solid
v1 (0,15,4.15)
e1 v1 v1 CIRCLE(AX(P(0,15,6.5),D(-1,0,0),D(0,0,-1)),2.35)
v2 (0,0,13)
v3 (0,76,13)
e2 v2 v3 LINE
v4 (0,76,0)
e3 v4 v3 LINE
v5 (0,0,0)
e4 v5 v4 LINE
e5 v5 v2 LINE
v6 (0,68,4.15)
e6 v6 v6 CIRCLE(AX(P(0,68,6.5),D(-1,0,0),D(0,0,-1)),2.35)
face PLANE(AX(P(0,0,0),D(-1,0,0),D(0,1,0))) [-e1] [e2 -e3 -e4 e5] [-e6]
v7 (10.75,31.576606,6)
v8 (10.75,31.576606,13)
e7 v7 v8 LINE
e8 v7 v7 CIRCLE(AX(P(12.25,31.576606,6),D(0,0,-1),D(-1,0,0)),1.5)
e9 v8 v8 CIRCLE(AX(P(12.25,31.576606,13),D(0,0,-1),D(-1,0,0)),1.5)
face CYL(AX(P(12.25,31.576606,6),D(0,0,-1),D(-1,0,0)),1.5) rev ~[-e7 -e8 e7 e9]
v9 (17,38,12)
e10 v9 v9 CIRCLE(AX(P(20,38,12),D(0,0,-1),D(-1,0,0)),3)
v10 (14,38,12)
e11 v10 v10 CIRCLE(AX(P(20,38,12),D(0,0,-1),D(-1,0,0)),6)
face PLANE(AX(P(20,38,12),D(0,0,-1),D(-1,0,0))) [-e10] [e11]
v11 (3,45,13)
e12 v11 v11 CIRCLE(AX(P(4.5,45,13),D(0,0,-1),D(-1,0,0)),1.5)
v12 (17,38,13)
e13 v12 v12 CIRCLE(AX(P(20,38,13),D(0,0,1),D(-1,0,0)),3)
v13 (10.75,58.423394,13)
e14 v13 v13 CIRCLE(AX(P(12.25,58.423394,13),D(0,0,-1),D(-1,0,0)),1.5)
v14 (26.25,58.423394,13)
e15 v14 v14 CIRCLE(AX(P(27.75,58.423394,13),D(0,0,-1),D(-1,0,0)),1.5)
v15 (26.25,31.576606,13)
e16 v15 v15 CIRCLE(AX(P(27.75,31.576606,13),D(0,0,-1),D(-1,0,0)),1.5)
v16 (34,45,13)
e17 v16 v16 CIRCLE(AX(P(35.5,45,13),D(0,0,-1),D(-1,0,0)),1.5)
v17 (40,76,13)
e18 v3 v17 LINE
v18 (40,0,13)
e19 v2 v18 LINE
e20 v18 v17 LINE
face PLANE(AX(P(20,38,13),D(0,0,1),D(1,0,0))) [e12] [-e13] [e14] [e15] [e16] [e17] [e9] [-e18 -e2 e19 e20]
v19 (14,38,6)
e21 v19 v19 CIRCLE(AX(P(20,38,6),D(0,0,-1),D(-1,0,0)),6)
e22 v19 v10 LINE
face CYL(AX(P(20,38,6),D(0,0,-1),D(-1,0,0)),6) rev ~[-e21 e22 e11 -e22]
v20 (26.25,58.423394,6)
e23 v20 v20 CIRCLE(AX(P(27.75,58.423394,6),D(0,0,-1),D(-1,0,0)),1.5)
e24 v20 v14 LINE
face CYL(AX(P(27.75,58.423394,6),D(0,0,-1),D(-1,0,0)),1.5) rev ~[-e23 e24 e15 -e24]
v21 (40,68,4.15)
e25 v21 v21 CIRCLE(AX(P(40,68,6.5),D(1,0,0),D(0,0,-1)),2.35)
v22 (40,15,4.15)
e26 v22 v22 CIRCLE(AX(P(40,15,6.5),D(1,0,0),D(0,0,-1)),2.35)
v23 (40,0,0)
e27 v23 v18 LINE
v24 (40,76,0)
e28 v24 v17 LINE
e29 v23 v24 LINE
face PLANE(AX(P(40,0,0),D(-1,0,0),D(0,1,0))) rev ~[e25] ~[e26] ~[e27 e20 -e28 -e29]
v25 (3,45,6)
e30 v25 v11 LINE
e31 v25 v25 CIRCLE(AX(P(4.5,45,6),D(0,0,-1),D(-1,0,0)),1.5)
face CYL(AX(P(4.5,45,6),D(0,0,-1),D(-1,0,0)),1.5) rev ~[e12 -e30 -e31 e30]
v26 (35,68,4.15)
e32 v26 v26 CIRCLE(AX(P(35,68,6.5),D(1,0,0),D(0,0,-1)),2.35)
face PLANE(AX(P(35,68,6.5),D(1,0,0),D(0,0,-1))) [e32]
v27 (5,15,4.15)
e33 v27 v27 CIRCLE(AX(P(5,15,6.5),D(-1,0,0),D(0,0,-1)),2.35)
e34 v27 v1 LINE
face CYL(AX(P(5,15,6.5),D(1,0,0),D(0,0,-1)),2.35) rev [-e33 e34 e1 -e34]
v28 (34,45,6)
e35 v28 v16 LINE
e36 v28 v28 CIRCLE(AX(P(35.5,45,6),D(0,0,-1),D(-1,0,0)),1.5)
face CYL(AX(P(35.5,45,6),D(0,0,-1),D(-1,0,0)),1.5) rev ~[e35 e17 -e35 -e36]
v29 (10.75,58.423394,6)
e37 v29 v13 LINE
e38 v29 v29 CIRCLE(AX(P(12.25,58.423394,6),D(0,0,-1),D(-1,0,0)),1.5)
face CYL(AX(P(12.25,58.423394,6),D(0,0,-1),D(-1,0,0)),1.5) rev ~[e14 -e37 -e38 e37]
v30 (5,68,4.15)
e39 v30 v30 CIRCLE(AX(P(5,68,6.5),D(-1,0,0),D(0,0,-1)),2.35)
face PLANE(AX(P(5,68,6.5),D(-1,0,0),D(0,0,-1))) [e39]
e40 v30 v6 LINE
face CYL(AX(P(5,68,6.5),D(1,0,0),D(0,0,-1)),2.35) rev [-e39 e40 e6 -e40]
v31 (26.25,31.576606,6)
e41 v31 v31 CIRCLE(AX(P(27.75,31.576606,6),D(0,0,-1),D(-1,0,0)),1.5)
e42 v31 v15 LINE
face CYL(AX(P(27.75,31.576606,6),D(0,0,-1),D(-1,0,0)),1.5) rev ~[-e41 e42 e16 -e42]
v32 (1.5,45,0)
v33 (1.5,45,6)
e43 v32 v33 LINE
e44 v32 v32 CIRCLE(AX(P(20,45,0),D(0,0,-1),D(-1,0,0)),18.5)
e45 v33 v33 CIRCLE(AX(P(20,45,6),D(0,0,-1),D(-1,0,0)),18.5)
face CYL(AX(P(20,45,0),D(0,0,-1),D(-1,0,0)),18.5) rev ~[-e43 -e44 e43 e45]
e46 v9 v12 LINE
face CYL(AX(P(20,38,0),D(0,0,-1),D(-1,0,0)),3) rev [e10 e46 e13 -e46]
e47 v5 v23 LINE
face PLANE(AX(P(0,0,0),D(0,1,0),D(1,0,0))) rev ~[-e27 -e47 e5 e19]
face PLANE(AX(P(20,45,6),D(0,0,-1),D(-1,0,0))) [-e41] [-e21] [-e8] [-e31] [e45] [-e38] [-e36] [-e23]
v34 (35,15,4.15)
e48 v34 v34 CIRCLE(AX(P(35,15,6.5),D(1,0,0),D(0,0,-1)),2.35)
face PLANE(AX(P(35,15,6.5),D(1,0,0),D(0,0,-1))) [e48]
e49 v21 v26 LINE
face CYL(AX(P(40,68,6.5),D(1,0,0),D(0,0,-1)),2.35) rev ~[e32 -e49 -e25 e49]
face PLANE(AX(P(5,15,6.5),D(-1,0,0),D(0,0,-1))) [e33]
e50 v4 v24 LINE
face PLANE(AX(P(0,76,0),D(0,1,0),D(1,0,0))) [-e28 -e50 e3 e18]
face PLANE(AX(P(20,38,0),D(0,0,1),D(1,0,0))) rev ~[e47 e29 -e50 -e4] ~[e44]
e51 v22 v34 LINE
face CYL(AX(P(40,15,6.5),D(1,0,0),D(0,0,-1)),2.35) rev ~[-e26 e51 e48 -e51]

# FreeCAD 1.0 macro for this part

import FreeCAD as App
import Part
import Sketcher
Q = App.Units.Quantity


def add_polygon(sketch, points):
    """Adds a closed chain of lines whose ends are joined by coincident constraints."""
    first, n = sketch.GeometryCount, len(points)
    for a, b in zip(points, points[1:] + points[:1]):
        sketch.addGeometry(Part.LineSegment(App.Vector(*a, 0), App.Vector(*b, 0)), False)
    for i in range(n):
        sketch.addConstraint(Sketcher.Constraint("Coincident", first + i, 2, first + (i + 1) % n, 1))

doc = App.newDocument("Part")
body = doc.addObject("PartDesign::Body", "Body")

sketch1 = body.newObject("Sketcher::SketchObject", "Sketch")
sketch1.AttachmentSupport = (doc.getObject("XY_Plane"), [""])
sketch1.MapMode = "FlatFace"
add_polygon(sketch1, [(0, 76), (0, 0), (40, 0), (40, 76)])
sketch1.addGeometry(Part.Circle(App.Vector(20, 38, 0), App.Vector(0, 0, 1), 3), False)
sketch1.addConstraint(Sketcher.Constraint("Vertical", 0))
sketch1.addConstraint(Sketcher.Constraint("Horizontal", 1))
sketch1.addConstraint(Sketcher.Constraint("Vertical", 2))
sketch1.addConstraint(Sketcher.Constraint("Horizontal", 3))
sketch1.addConstraint(Sketcher.Constraint("Coincident", 0, 2, -1, 1))
sketch1.addConstraint(Sketcher.Constraint("Diameter", 4, Q("6 mm")))
sketch1.addConstraint(Sketcher.Constraint("DistanceX", 1, 1, 1, 2, Q("40 mm")))
sketch1.addConstraint(Sketcher.Constraint("DistanceY", 0, 2, 0, 1, Q("76 mm")))
sketch1.addConstraint(Sketcher.Constraint("DistanceX", -1, 1, 4, 3, Q("20 mm")))
sketch1.addConstraint(Sketcher.Constraint("DistanceY", -1, 1, 4, 3, Q("38 mm")))
pad1 = body.newObject("PartDesign::Pad", "Pad")
pad1.Profile = sketch1
pad1.Length = 13

sketch2 = body.newObject("Sketcher::SketchObject", "Sketch001")
sketch2.AttachmentSupport = (doc.getObject("XY_Plane"), [""])
sketch2.MapMode = "FlatFace"
sketch2.addGeometry(Part.Circle(App.Vector(20, 45, 0), App.Vector(0, 0, 1), 18.5), False)
sketch2.addConstraint(Sketcher.Constraint("Diameter", 0, Q("37 mm")))
sketch2.addConstraint(Sketcher.Constraint("DistanceX", -1, 1, 0, 3, Q("20 mm")))
sketch2.addConstraint(Sketcher.Constraint("DistanceY", -1, 1, 0, 3, Q("45 mm")))
pocket1 = body.newObject("PartDesign::Pocket", "Pocket")
pocket1.Profile = sketch2
pocket1.Length = 6
pocket1.Reversed = True

sketch3 = body.newObject("Sketcher::SketchObject", "Sketch002")
sketch3.AttachmentSupport = (doc.getObject("XY_Plane"), [""])
sketch3.MapMode = "FlatFace"
sketch3.AttachmentOffset = App.Placement(App.Vector(0, 0, 6), App.Rotation())
sketch3.addGeometry(Part.Circle(App.Vector(35.5, 45, 0), App.Vector(0, 0, 1), 1.5), False)
sketch3.addGeometry(Part.Circle(App.Vector(27.75, 58.423394, 0), App.Vector(0, 0, 1), 1.5), False)
sketch3.addGeometry(Part.Circle(App.Vector(12.25, 58.423394, 0), App.Vector(0, 0, 1), 1.5), False)
sketch3.addGeometry(Part.Circle(App.Vector(4.5, 45, 0), App.Vector(0, 0, 1), 1.5), False)
sketch3.addGeometry(Part.Circle(App.Vector(12.25, 31.576606, 0), App.Vector(0, 0, 1), 1.5), False)
sketch3.addGeometry(Part.Circle(App.Vector(27.75, 31.576606, 0), App.Vector(0, 0, 1), 1.5), False)
sketch3.addConstraint(Sketcher.Constraint("Equal", 0, 1))
sketch3.addConstraint(Sketcher.Constraint("Equal", 1, 2))
sketch3.addConstraint(Sketcher.Constraint("Equal", 2, 3))
sketch3.addConstraint(Sketcher.Constraint("Equal", 3, 4))
sketch3.addConstraint(Sketcher.Constraint("Equal", 4, 5))
sketch3.addConstraint(Sketcher.Constraint("Horizontal", 1, 3, 2, 3))
sketch3.addConstraint(Sketcher.Constraint("Horizontal", 0, 3, 3, 3))
sketch3.addConstraint(Sketcher.Constraint("Horizontal", 4, 3, 5, 3))
sketch3.addConstraint(Sketcher.Constraint("Vertical", 2, 3, 4, 3))
sketch3.addConstraint(Sketcher.Constraint("Vertical", 1, 3, 5, 3))
sketch3.addConstraint(Sketcher.Constraint("Diameter", 0, Q("3 mm")))
sketch3.addConstraint(Sketcher.Constraint("DistanceY", -1, 1, 0, 3, Q("45 mm")))
sketch3.addConstraint(Sketcher.Constraint("DistanceX", 3, 3, 0, 3, Q("31 mm")))
sketch3.addConstraint(Sketcher.Constraint("DistanceX", -1, 1, 0, 3, Q("35.5 mm")))
sketch3.addConstraint(Sketcher.Constraint("DistanceX", 2, 3, 1, 3, Q("15.5 mm")))
sketch3.addConstraint(Sketcher.Constraint("DistanceX", -1, 1, 1, 3, Q("27.75 mm")))
sketch3.addConstraint(Sketcher.Constraint("DistanceY", -1, 1, 1, 3, Q("58.423394 mm")))
sketch3.addConstraint(Sketcher.Constraint("DistanceY", -1, 1, 4, 3, Q("31.576606 mm")))
pocket2 = body.newObject("PartDesign::Pocket", "Pocket001")
pocket2.Profile = sketch3
pocket2.Type = "ThroughAll"
pocket2.Reversed = True

sketch4 = body.newObject("Sketcher::SketchObject", "Sketch003")
sketch4.AttachmentSupport = (doc.getObject("XY_Plane"), [""])
sketch4.MapMode = "FlatFace"
sketch4.AttachmentOffset = App.Placement(App.Vector(0, 0, 6), App.Rotation())
sketch4.addGeometry(Part.Circle(App.Vector(20, 38, 0), App.Vector(0, 0, 1), 6), False)
sketch4.addConstraint(Sketcher.Constraint("Diameter", 0, Q("12 mm")))
sketch4.addConstraint(Sketcher.Constraint("DistanceX", -1, 1, 0, 3, Q("20 mm")))
sketch4.addConstraint(Sketcher.Constraint("DistanceY", -1, 1, 0, 3, Q("38 mm")))
pocket3 = body.newObject("PartDesign::Pocket", "Pocket002")
pocket3.Profile = sketch4
pocket3.Length = 6
pocket3.Reversed = True

sketch5 = body.newObject("Sketcher::SketchObject", "Sketch004")
sketch5.AttachmentSupport = (doc.getObject("YZ_Plane"), [""])
sketch5.MapMode = "FlatFace"
sketch5.AttachmentOffset = App.Placement(App.Vector(0, 0, 40), App.Rotation())
sketch5.addGeometry(Part.Circle(App.Vector(68, 6.5, 0), App.Vector(0, 0, 1), 2.35), False)
sketch5.addGeometry(Part.Circle(App.Vector(15, 6.5, 0), App.Vector(0, 0, 1), 2.35), False)
sketch5.addConstraint(Sketcher.Constraint("Equal", 0, 1))
sketch5.addConstraint(Sketcher.Constraint("Horizontal", 0, 3, 1, 3))
sketch5.addConstraint(Sketcher.Constraint("Diameter", 0, Q("4.7 mm")))
sketch5.addConstraint(Sketcher.Constraint("DistanceX", -1, 1, 0, 3, Q("68 mm")))
sketch5.addConstraint(Sketcher.Constraint("DistanceX", -1, 1, 1, 3, Q("15 mm")))
sketch5.addConstraint(Sketcher.Constraint("DistanceY", -1, 1, 0, 3, Q("6.5 mm")))
pocket4 = body.newObject("PartDesign::Pocket", "Pocket003")
pocket4.Profile = sketch5
pocket4.Length = 5

sketch6 = body.newObject("Sketcher::SketchObject", "Sketch005")
sketch6.AttachmentSupport = (doc.getObject("YZ_Plane"), [""])
sketch6.MapMode = "FlatFace"
sketch6.AttachmentOffset = App.Placement(App.Vector(0, 0, 5), App.Rotation())
sketch6.addGeometry(Part.Circle(App.Vector(68, 6.5, 0), App.Vector(0, 0, 1), 2.35), False)
sketch6.addGeometry(Part.Circle(App.Vector(15, 6.5, 0), App.Vector(0, 0, 1), 2.35), False)
sketch6.addConstraint(Sketcher.Constraint("Equal", 0, 1))
sketch6.addConstraint(Sketcher.Constraint("Horizontal", 0, 3, 1, 3))
sketch6.addConstraint(Sketcher.Constraint("Diameter", 0, Q("4.7 mm")))
sketch6.addConstraint(Sketcher.Constraint("DistanceX", -1, 1, 0, 3, Q("68 mm")))
sketch6.addConstraint(Sketcher.Constraint("DistanceX", -1, 1, 1, 3, Q("15 mm")))
sketch6.addConstraint(Sketcher.Constraint("DistanceY", -1, 1, 0, 3, Q("6.5 mm")))
pocket5 = body.newObject("PartDesign::Pocket", "Pocket004")
pocket5.Profile = sketch6
pocket5.Length = 5

doc.recompute()
